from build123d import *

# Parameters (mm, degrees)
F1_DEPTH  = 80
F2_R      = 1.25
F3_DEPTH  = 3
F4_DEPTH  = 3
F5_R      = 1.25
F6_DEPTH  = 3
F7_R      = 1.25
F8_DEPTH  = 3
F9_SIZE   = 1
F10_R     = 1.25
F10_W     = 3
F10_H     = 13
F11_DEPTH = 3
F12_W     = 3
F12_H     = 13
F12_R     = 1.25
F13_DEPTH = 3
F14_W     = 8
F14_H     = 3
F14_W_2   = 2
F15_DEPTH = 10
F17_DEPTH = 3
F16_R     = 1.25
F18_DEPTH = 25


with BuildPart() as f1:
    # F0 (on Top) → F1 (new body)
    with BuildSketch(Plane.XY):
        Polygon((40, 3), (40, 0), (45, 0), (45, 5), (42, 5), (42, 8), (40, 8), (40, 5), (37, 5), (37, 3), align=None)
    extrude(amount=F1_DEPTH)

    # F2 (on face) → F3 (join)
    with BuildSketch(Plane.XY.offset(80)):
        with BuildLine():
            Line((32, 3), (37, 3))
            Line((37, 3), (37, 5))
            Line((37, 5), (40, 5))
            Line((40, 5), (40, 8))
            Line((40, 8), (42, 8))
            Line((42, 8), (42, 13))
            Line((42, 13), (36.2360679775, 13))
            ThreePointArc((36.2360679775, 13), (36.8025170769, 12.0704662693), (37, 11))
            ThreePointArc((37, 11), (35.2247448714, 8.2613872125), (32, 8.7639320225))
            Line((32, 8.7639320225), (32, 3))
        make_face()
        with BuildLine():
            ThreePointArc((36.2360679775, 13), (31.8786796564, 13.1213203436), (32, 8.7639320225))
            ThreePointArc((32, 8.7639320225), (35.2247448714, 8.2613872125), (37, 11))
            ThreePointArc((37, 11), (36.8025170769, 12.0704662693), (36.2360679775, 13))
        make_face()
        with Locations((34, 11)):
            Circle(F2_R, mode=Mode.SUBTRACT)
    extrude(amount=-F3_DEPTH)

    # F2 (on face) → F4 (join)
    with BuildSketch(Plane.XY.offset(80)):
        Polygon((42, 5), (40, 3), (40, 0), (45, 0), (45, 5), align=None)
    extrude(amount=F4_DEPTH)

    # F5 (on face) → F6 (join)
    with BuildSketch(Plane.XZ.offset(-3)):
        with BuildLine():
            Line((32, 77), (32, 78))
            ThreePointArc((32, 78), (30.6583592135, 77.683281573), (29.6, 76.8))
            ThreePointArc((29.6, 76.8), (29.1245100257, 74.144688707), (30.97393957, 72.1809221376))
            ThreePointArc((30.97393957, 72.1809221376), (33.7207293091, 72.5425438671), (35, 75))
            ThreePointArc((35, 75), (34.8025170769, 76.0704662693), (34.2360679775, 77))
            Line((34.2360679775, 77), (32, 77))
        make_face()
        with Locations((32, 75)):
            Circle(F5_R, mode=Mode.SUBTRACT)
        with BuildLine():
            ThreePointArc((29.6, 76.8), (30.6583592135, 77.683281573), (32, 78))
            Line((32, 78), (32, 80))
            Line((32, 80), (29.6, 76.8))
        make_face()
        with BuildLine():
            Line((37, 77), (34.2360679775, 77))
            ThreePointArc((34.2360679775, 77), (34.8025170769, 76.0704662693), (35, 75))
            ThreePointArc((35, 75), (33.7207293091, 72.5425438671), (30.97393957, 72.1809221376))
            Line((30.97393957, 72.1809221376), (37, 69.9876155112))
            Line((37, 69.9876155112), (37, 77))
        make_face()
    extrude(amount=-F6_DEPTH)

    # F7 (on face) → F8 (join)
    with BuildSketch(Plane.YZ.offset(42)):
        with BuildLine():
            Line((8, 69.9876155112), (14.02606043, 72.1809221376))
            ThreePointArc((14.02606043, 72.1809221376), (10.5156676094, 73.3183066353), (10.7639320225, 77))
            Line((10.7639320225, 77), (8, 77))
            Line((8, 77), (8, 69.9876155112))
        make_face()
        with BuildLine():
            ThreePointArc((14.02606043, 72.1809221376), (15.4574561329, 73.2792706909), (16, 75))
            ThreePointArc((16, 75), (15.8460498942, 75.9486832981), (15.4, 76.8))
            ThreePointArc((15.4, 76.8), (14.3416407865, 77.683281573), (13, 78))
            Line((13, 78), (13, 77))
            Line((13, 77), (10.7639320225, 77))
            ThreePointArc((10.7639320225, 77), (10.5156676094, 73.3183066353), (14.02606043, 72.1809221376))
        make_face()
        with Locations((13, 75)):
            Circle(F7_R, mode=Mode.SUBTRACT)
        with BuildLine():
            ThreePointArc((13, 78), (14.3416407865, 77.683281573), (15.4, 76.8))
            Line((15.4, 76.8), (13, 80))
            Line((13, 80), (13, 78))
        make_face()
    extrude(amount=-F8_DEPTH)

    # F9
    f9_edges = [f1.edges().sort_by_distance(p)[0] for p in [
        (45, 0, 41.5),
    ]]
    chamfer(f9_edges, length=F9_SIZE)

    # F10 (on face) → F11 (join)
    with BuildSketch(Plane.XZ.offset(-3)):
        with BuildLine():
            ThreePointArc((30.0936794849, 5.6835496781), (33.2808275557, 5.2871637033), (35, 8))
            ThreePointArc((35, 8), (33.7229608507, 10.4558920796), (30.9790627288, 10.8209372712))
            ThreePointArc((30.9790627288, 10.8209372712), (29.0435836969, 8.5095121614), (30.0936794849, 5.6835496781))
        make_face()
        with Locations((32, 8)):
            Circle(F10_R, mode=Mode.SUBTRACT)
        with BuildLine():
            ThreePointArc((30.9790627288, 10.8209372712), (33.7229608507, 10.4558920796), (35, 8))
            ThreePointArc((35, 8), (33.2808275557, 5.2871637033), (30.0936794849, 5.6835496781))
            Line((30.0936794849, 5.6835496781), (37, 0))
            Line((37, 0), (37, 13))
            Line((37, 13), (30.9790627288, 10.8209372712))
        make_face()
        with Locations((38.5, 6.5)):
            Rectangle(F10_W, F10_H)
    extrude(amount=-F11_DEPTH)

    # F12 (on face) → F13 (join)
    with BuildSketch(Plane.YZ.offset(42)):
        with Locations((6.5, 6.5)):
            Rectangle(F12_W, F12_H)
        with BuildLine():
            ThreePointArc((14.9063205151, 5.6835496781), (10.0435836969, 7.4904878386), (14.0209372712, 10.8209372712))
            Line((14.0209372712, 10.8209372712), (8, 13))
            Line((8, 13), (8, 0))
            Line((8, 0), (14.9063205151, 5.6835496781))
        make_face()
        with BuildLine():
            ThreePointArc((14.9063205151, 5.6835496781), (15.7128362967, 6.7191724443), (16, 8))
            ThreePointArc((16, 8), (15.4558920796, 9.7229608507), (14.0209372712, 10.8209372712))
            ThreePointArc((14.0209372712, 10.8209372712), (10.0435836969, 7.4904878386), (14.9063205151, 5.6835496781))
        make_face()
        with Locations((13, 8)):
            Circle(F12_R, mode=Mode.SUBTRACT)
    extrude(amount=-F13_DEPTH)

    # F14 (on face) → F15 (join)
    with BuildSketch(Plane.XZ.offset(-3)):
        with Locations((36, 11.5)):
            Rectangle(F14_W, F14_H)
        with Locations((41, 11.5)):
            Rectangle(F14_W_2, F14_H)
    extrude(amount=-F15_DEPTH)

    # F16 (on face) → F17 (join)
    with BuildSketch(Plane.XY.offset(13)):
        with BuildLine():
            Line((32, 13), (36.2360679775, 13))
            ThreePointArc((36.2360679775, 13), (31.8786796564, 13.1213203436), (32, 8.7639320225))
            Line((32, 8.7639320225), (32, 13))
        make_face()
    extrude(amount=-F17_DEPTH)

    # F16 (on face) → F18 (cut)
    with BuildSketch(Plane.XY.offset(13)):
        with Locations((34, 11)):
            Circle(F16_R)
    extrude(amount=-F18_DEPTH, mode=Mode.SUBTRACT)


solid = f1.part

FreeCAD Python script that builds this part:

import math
import FreeCAD as App
import Part
import Sketcher

V = App.Vector
Q = App.Units.Quantity


def edges_at(feature, points):
    """Names of the edges that pass closest to the given points."""
    edges = feature.Shape.Edges
    near = lambda p: min(range(len(edges)), key=lambda i: edges[i].distToShape(Part.Vertex(*p))[0])
    return sorted({f"Edge{near(p) + 1}" for p in points})


def add_polygon(sketch, points):
    """Adds a closed chain of lines whose ends are joined by coincident constraints."""
    first, n = sketch.GeometryCount, len(points)
    for a, b in zip(points, points[1:] + points[:1]):
        sketch.addGeometry(Part.LineSegment(App.Vector(*a, 0), App.Vector(*b, 0)), False)
    for i in range(n):
        sketch.addConstraint(Sketcher.Constraint("Coincident", first + i, 2, first + (i + 1) % n, 1))

doc = App.newDocument("Part")
body = doc.addObject("PartDesign::Body", "Body")

# Sketch on XY plane
sketch1 = doc.addObject("Sketcher::SketchObject", "Sketch")
body.addObject(sketch1)
sketch1.AttachmentSupport = (doc.XY_Plane, [""])
sketch1.MapMode = "FlatFace"
add_polygon(sketch1, [(40, 3), (40, 0), (45, 0), (45, 5), (42, 5), (42, 8), (40, 8), (40, 5), (37, 5), (37, 3)])  # lines 0-9
sketch1.addConstraint(Sketcher.Constraint("Vertical", 0))
sketch1.addConstraint(Sketcher.Constraint("Horizontal", 1))
sketch1.addConstraint(Sketcher.Constraint("Vertical", 2))
sketch1.addConstraint(Sketcher.Constraint("Horizontal", 3))
sketch1.addConstraint(Sketcher.Constraint("Vertical", 4))
sketch1.addConstraint(Sketcher.Constraint("Horizontal", 5))
sketch1.addConstraint(Sketcher.Constraint("Vertical", 6))
sketch1.addConstraint(Sketcher.Constraint("Horizontal", 7))
sketch1.addConstraint(Sketcher.Constraint("Vertical", 8))
sketch1.addConstraint(Sketcher.Constraint("Horizontal", 9))
sketch1.addConstraint(Sketcher.Constraint("PointOnObject", 0, 2, -1))
sketch1.addConstraint(Sketcher.Constraint("Horizontal", 3, 2, 6, 2))
sketch1.addConstraint(Sketcher.Constraint("Vertical", 0, 2, 5, 2))
sketch1.addConstraint(Sketcher.Constraint("Equal", 3, 7))
sketch1.addConstraint(Sketcher.Constraint("Equal", 9, 0))
sketch1.addConstraint(Sketcher.Constraint("Equal", 1, 2))
sketch1.addConstraint(Sketcher.Constraint("Equal", 0, 4))
sketch1.addConstraint(Sketcher.Constraint("DistanceX", 1, 1, 1, 2, Q("5 mm")))
sketch1.addConstraint(Sketcher.Constraint("DistanceX", 3, 2, 3, 1, Q("3 mm")))
sketch1.addConstraint(Sketcher.Constraint("DistanceX", -1, 1, 0, 2, Q("40 mm")))
pad1 = doc.addObject("PartDesign::Pad", "Pad")
body.addObject(pad1)
pad1.Profile = sketch1
pad1.Length = 80

# Sketch on XY plane
sketch2 = doc.addObject("Sketcher::SketchObject", "Sketch001")
body.addObject(sketch2)
sketch2.AttachmentSupport = (doc.XY_Plane, [""])
sketch2.MapMode = "FlatFace"
sketch2.AttachmentOffset = App.Placement(V(0, 0, 80), App.Rotation())
sketch2.addGeometry(Part.LineSegment(V(32, 3, 0), V(37, 3, 0)), False)
sketch2.addGeometry(Part.LineSegment(V(37, 3, 0), V(37, 5, 0)), False)
sketch2.addGeometry(Part.LineSegment(V(37, 5, 0), V(40, 5, 0)), False)
sketch2.addGeometry(Part.LineSegment(V(40, 5, 0), V(40, 8, 0)), False)
sketch2.addGeometry(Part.LineSegment(V(40, 8, 0), V(42, 8, 0)), False)
sketch2.addGeometry(Part.LineSegment(V(42, 8, 0), V(42, 13, 0)), False)
sketch2.addGeometry(Part.LineSegment(V(42, 13, 0), V(36.2, 13, 0)), False)
sketch2.addGeometry(Part.ArcOfCircle(Part.Circle(V(34, 11, 0), V(0, 0, 1), 3), math.radians(42), math.radians(228)), False)
sketch2.addGeometry(Part.LineSegment(V(32, 8.8, 0), V(32, 3, 0)), False)
sketch2.addGeometry(Part.Circle(V(34, 11, 0), V(0, 0, 1), 1.2), False)
sketch2.addConstraint(Sketcher.Constraint("Coincident", 0, 2, 1, 1))
sketch2.addConstraint(Sketcher.Constraint("Coincident", 1, 2, 2, 1))
sketch2.addConstraint(Sketcher.Constraint("Coincident", 2, 2, 3, 1))
sketch2.addConstraint(Sketcher.Constraint("Coincident", 3, 2, 4, 1))
sketch2.addConstraint(Sketcher.Constraint("Coincident", 4, 2, 5, 1))
sketch2.addConstraint(Sketcher.Constraint("Coincident", 5, 2, 6, 1))
sketch2.addConstraint(Sketcher.Constraint("Coincident", 6, 2, 7, 1))
sketch2.addConstraint(Sketcher.Constraint("Coincident", 7, 2, 8, 1))
sketch2.addConstraint(Sketcher.Constraint("Coincident", 8, 2, 0, 1))
sketch2.addConstraint(Sketcher.Constraint("Horizontal", 0))
sketch2.addConstraint(Sketcher.Constraint("Vertical", 1))
sketch2.addConstraint(Sketcher.Constraint("Horizontal", 2))
sketch2.addConstraint(Sketcher.Constraint("Vertical", 3))
sketch2.addConstraint(Sketcher.Constraint("Horizontal", 4))
sketch2.addConstraint(Sketcher.Constraint("Vertical", 5))
sketch2.addConstraint(Sketcher.Constraint("Horizontal", 6))
sketch2.addConstraint(Sketcher.Constraint("Vertical", 8))
sketch2.addConstraint(Sketcher.Constraint("Coincident", 9, 3, 7, 3))
sketch2.addConstraint(Sketcher.Constraint("Equal", 4, 1))
sketch2.addConstraint(Sketcher.Constraint("Equal", 2, 3))
sketch2.addConstraint(Sketcher.Constraint("Equal", 0, 5))
sketch2.addConstraint(Sketcher.Constraint("Equal", 6, 8))
sketch2.addConstraint(Sketcher.Constraint("Radius", 7, Q("3 mm")))
sketch2.addConstraint(Sketcher.Constraint("Diameter", 9, Q("2.5 mm")))
sketch2.addConstraint(Sketcher.Constraint("DistanceX", 0, 1, 0, 2, Q("5 mm")))
sketch2.addConstraint(Sketcher.Constraint("DistanceX", 2, 1, 2, 2, Q("3 mm")))
sketch2.addConstraint(Sketcher.Constraint("DistanceX", 4, 1, 4, 2, Q("2 mm")))
sketch2.addConstraint(Sketcher.Constraint("DistanceX", -1, 1, 7, 3, Q("34 mm")))
sketch2.addConstraint(Sketcher.Constraint("DistanceY", -1, 1, 7, 3, Q("11 mm")))
sketch2.addConstraint(Sketcher.Constraint("DistanceX", -1, 1, 0, 2, Q("37 mm")))
pad2 = doc.addObject("PartDesign::Pad", "Pad001")
body.addObject(pad2)
pad2.Profile = sketch2
pad2.Length = 3
pad2.Reversed = True

# Sketch on XY plane
sketch3 = doc.addObject("Sketcher::SketchObject", "Sketch002")
body.addObject(sketch3)
sketch3.AttachmentSupport = (doc.XY_Plane, [""])
sketch3.MapMode = "FlatFace"
sketch3.AttachmentOffset = App.Placement(V(0, 0, 80), App.Rotation())
add_polygon(sketch3, [(42, 5), (40, 3), (40, 0), (45, 0), (45, 5)])  # lines 0-4
sketch3.addConstraint(Sketcher.Constraint("Vertical", 1))
sketch3.addConstraint(Sketcher.Constraint("Horizontal", 2))
sketch3.addConstraint(Sketcher.Constraint("Vertical", 3))
sketch3.addConstraint(Sketcher.Constraint("Horizontal", 4))
sketch3.addConstraint(Sketcher.Constraint("PointOnObject", 1, 2, -1))
sketch3.addConstraint(Sketcher.Constraint("Equal", 4, 1))
sketch3.addConstraint(Sketcher.Constraint("Equal", 2, 3))
sketch3.addConstraint(Sketcher.Constraint("DistanceX", 2, 1, 2, 2, Q("5 mm")))
sketch3.addConstraint(Sketcher.Constraint("DistanceX", 4, 2, 4, 1, Q("3 mm")))
sketch3.addConstraint(Sketcher.Constraint("DistanceX", -1, 1, 0, 2, Q("40 mm")))
pad3 = doc.addObject("PartDesign::Pad", "Pad002")
body.addObject(pad3)
pad3.Profile = sketch3
pad3.Length = 3

# Sketch on XZ plane
sketch4 = doc.addObject("Sketcher::SketchObject", "Sketch003")
body.addObject(sketch4)
sketch4.AttachmentSupport = (doc.XZ_Plane, [""])
sketch4.MapMode = "FlatFace"
sketch4.AttachmentOffset = App.Placement(V(0, 0, -3), App.Rotation())
sketch4.addGeometry(Part.LineSegment(V(32, 77, 0), V(32, 80, 0)), False)
sketch4.addGeometry(Part.LineSegment(V(32, 80, 0), V(29.6, 76.8, 0)), False)
sketch4.addGeometry(Part.ArcOfCircle(Part.Circle(V(32, 75, 0), V(0, 0, 1), 3), math.radians(143), math.radians(250)), False)
sketch4.addGeometry(Part.LineSegment(V(31, 72.2, 0), V(37, 70, 0)), False)
sketch4.addGeometry(Part.LineSegment(V(37, 70, 0), V(37, 77, 0)), False)
sketch4.addGeometry(Part.LineSegment(V(37, 77, 0), V(32, 77, 0)), False)
sketch4.addGeometry(Part.Circle(V(32, 75, 0), V(0, 0, 1), 1.2), False)
sketch4.addConstraint(Sketcher.Constraint("Coincident", 0, 2, 1, 1))
sketch4.addConstraint(Sketcher.Constraint("Tangent", 1, 2, 2, 1))
sketch4.addConstraint(Sketcher.Constraint("Tangent", 2, 2, 3, 1))
sketch4.addConstraint(Sketcher.Constraint("Coincident", 3, 2, 4, 1))
sketch4.addConstraint(Sketcher.Constraint("Coincident", 4, 2, 5, 1))
sketch4.addConstraint(Sketcher.Constraint("Coincident", 5, 2, 0, 1))
sketch4.addConstraint(Sketcher.Constraint("Vertical", 0))
sketch4.addConstraint(Sketcher.Constraint("Vertical", 4))
sketch4.addConstraint(Sketcher.Constraint("Horizontal", 5))
sketch4.addConstraint(Sketcher.Constraint("Coincident", 6, 3, 2, 3))
sketch4.addConstraint(Sketcher.Constraint("Vertical", 6, 3, 0, 2))
sketch4.addConstraint(Sketcher.Constraint("Radius", 2, Q("3 mm")))
sketch4.addConstraint(Sketcher.Constraint("Diameter", 6, Q("2.5 mm")))
sketch4.addConstraint(Sketcher.Constraint("DistanceX", 5, 2, 5, 1, Q("5 mm")))
sketch4.addConstraint(Sketcher.Constraint("DistanceY", 0, 1, 0, 2, Q("3 mm")))
sketch4.addConstraint(Sketcher.Constraint("Angle", 3, Q("-20 deg")))
sketch4.addConstraint(Sketcher.Constraint("Distance", 1, Q("4 mm")))
sketch4.addConstraint(Sketcher.Constraint("DistanceX", -1, 1, 2, 3, Q("32 mm")))
sketch4.addConstraint(Sketcher.Constraint("DistanceY", -1, 1, 2, 3, Q("75 mm")))
pad4 = doc.addObject("PartDesign::Pad", "Pad003")
body.addObject(pad4)
pad4.Profile = sketch4
pad4.Length = 3
pad4.Reversed = True

# Sketch on YZ plane
sketch5 = doc.addObject("Sketcher::SketchObject", "Sketch004")
body.addObject(sketch5)
sketch5.AttachmentSupport = (doc.YZ_Plane, [""])
sketch5.MapMode = "FlatFace"
sketch5.AttachmentOffset = App.Placement(V(0, 0, 42), App.Rotation())
sketch5.addGeometry(Part.LineSegment(V(8, 70, 0), V(14, 72.2, 0)), False)
sketch5.addGeometry(Part.ArcOfCircle(Part.Circle(V(13, 75, 0), V(0, 0, 1), 3), math.radians(-70), math.radians(0)), False)
sketch5.addGeometry(Part.ArcOfCircle(Part.Circle(V(13, 75, 0), V(0, 0, 1), 3), math.radians(0), math.radians(37)), False)
sketch5.addGeometry(Part.LineSegment(V(15.4, 76.8, 0), V(13, 80, 0)), False)
sketch5.addGeometry(Part.LineSegment(V(13, 80, 0), V(13, 77, 0)), False)
sketch5.addGeometry(Part.LineSegment(V(13, 77, 0), V(8, 77, 0)), False)
sketch5.addGeometry(Part.LineSegment(V(8, 77, 0), V(8, 70, 0)), False)
sketch5.addGeometry(Part.Circle(V(13, 75, 0), V(0, 0, 1), 1.2), False)
sketch5.addConstraint(Sketcher.Constraint("Tangent", 0, 2, 1, 1))
sketch5.addConstraint(Sketcher.Constraint("Tangent", 1, 2, 2, 1))
sketch5.addConstraint(Sketcher.Constraint("Tangent", 2, 2, 3, 1))
sketch5.addConstraint(Sketcher.Constraint("Coincident", 3, 2, 4, 1))
sketch5.addConstraint(Sketcher.Constraint("Coincident", 4, 2, 5, 1))
sketch5.addConstraint(Sketcher.Constraint("Coincident", 5, 2, 6, 1))
sketch5.addConstraint(Sketcher.Constraint("Coincident", 6, 2, 0, 1))
sketch5.addConstraint(Sketcher.Constraint("Vertical", 4))
sketch5.addConstraint(Sketcher.Constraint("Horizontal", 5))
sketch5.addConstraint(Sketcher.Constraint("Vertical", 6))
sketch5.addConstraint(Sketcher.Constraint("Coincident", 7, 3, 1, 3))
sketch5.addConstraint(Sketcher.Constraint("Equal", 1, 2))
sketch5.addConstraint(Sketcher.Constraint("Horizontal", 7, 3, 1, 2))
sketch5.addConstraint(Sketcher.Constraint("Vertical", 7, 3, 3, 2))
sketch5.addConstraint(Sketcher.Constraint("Radius", 1, Q("3 mm")))
sketch5.addConstraint(Sketcher.Constraint("Diameter", 7, Q("2.5 mm")))
sketch5.addConstraint(Sketcher.Constraint("DistanceX", 5, 2, 5, 1, Q("5 mm")))
sketch5.addConstraint(Sketcher.Constraint("DistanceY", 4, 2, 4, 1, Q("3 mm")))
sketch5.addConstraint(Sketcher.Constraint("Angle", 0, Q("20 deg")))
sketch5.addConstraint(Sketcher.Constraint("Distance", 3, Q("4 mm")))
sketch5.addConstraint(Sketcher.Constraint("DistanceX", -1, 1, 1, 3, Q("13 mm")))
sketch5.addConstraint(Sketcher.Constraint("DistanceY", -1, 1, 1, 3, Q("75 mm")))
pad5 = doc.addObject("PartDesign::Pad", "Pad004")
body.addObject(pad5)
pad5.Profile = sketch5
pad5.Length = 3
pad5.Reversed = True
doc.recompute()

chamfer = doc.addObject("PartDesign::Chamfer", "Chamfer")
body.addObject(chamfer)
chamfer.Base = (pad5, edges_at(pad5, [(45, 0, 41.5)]))
chamfer.Size = 1

# Sketch on XZ plane
sketch6 = doc.addObject("Sketcher::SketchObject", "Sketch005")
body.addObject(sketch6)
sketch6.AttachmentSupport = (doc.XZ_Plane, [""])
sketch6.MapMode = "FlatFace"
sketch6.AttachmentOffset = App.Placement(V(0, 0, -3), App.Rotation())
sketch6.addGeometry(Part.ArcOfCircle(Part.Circle(V(32, 8, 0), V(0, 0, 1), 3), math.radians(110), math.radians(231)), False)
sketch6.addGeometry(Part.LineSegment(V(30.1, 5.7, 0), V(37, 0, 0)), False)
sketch6.addGeometry(Part.LineSegment(V(37, 0, 0), V(40, 0, 0)), False)
sketch6.addGeometry(Part.LineSegment(V(40, 0, 0), V(40, 13, 0)), False)
sketch6.addGeometry(Part.LineSegment(V(40, 13, 0), V(37, 13, 0)), False)
sketch6.addGeometry(Part.LineSegment(V(37, 13, 0), V(31, 10.8, 0)), False)
sketch6.addGeometry(Part.Circle(V(32, 8, 0), V(0, 0, 1), 1.2), False)
sketch6.addConstraint(Sketcher.Constraint("Tangent", 0, 2, 1, 1))
sketch6.addConstraint(Sketcher.Constraint("Coincident", 1, 2, 2, 1))
sketch6.addConstraint(Sketcher.Constraint("Coincident", 2, 2, 3, 1))
sketch6.addConstraint(Sketcher.Constraint("Coincident", 3, 2, 4, 1))
sketch6.addConstraint(Sketcher.Constraint("Coincident", 4, 2, 5, 1))
sketch6.addConstraint(Sketcher.Constraint("Tangent", 5, 2, 0, 1))
sketch6.addConstraint(Sketcher.Constraint("Horizontal", 2))
sketch6.addConstraint(Sketcher.Constraint("Vertical", 3))
sketch6.addConstraint(Sketcher.Constraint("Horizontal", 4))
sketch6.addConstraint(Sketcher.Constraint("Coincident", 6, 3, 0, 3))
sketch6.addConstraint(Sketcher.Constraint("PointOnObject", 1, 2, -1))
sketch6.addConstraint(Sketcher.Constraint("Vertical", 1, 2, 4, 2))
sketch6.addConstraint(Sketcher.Constraint("Radius", 0, Q("3 mm")))
sketch6.addConstraint(Sketcher.Constraint("Diameter", 6, Q("2.5 mm")))
sketch6.addConstraint(Sketcher.Constraint("DistanceX", 2, 1, 2, 2, Q("3 mm")))
sketch6.addConstraint(Sketcher.Constraint("DistanceY", 3, 1, 3, 2, Q("13 mm")))
sketch6.addConstraint(Sketcher.Constraint("DistanceX", -1, 1, 0, 3, Q("32 mm")))
sketch6.addConstraint(Sketcher.Constraint("DistanceY", -1, 1, 0, 3, Q("8 mm")))
sketch6.addConstraint(Sketcher.Constraint("DistanceX", -1, 1, 1, 2, Q("37 mm")))
pad6 = doc.addObject("PartDesign::Pad", "Pad005")
body.addObject(pad6)
pad6.Profile = sketch6
pad6.Length = 3
pad6.Reversed = True

# Sketch on YZ plane
sketch7 = doc.addObject("Sketcher::SketchObject", "Sketch006")
body.addObject(sketch7)
sketch7.AttachmentSupport = (doc.YZ_Plane, [""])
sketch7.MapMode = "FlatFace"
sketch7.AttachmentOffset = App.Placement(V(0, 0, 42), App.Rotation())
sketch7.addGeometry(Part.LineSegment(V(5, 13, 0), V(5, 0, 0)), False)
sketch7.addGeometry(Part.LineSegment(V(5, 0, 0), V(8, 0, 0)), False)
sketch7.addGeometry(Part.LineSegment(V(8, 0, 0), V(14.9, 5.7, 0)), False)
sketch7.addGeometry(Part.ArcOfCircle(Part.Circle(V(13, 8, 0), V(0, 0, 1), 3), math.radians(-51), math.radians(0)), False)
sketch7.addGeometry(Part.ArcOfCircle(Part.Circle(V(13, 8, 0), V(0, 0, 1), 3), math.radians(0), math.radians(70)), False)
sketch7.addGeometry(Part.LineSegment(V(14, 10.8, 0), V(8, 13, 0)), False)
sketch7.addGeometry(Part.LineSegment(V(8, 13, 0), V(5, 13, 0)), False)
sketch7.addGeometry(Part.Circle(V(13, 8, 0), V(0, 0, 1), 1.2), False)
sketch7.addConstraint(Sketcher.Constraint("Coincident", 0, 2, 1, 1))
sketch7.addConstraint(Sketcher.Constraint("Coincident", 1, 2, 2, 1))
sketch7.addConstraint(Sketcher.Constraint("Tangent", 2, 2, 3, 1))
sketch7.addConstraint(Sketcher.Constraint("Tangent", 3, 2, 4, 1))
sketch7.addConstraint(Sketcher.Constraint("Tangent", 4, 2, 5, 1))
sketch7.addConstraint(Sketcher.Constraint("Coincident", 5, 2, 6, 1))
sketch7.addConstraint(Sketcher.Constraint("Coincident", 6, 2, 0, 1))
sketch7.addConstraint(Sketcher.Constraint("Vertical", 0))
sketch7.addConstraint(Sketcher.Constraint("Horizontal", 1))
sketch7.addConstraint(Sketcher.Constraint("Horizontal", 6))
sketch7.addConstraint(Sketcher.Constraint("Coincident", 7, 3, 3, 3))
sketch7.addConstraint(Sketcher.Constraint("Equal", 3, 4))
sketch7.addConstraint(Sketcher.Constraint("PointOnObject", 0, 2, -1))
sketch7.addConstraint(Sketcher.Constraint("Horizontal", 7, 3, 3, 2))
sketch7.addConstraint(Sketcher.Constraint("Vertical", 1, 2, 5, 2))
sketch7.addConstraint(Sketcher.Constraint("Radius", 3, Q("3 mm")))
sketch7.addConstraint(Sketcher.Constraint("Diameter", 7, Q("2.5 mm")))
sketch7.addConstraint(Sketcher.Constraint("DistanceX", 1, 1, 1, 2, Q("3 mm")))
sketch7.addConstraint(Sketcher.Constraint("DistanceY", 0, 2, 0, 1, Q("13 mm")))
sketch7.addConstraint(Sketcher.Constraint("DistanceX", -1, 1, 3, 3, Q("13 mm")))
sketch7.addConstraint(Sketcher.Constraint("DistanceY", -1, 1, 3, 3, Q("8 mm")))
sketch7.addConstraint(Sketcher.Constraint("DistanceX", -1, 1, 0, 2, Q("5 mm")))
pad7 = doc.addObject("PartDesign::Pad", "Pad006")
body.addObject(pad7)
pad7.Profile = sketch7
pad7.Length = 3
pad7.Reversed = True

# Sketch on XZ plane
sketch8 = doc.addObject("Sketcher::SketchObject", "Sketch007")
body.addObject(sketch8)
sketch8.AttachmentSupport = (doc.XZ_Plane, [""])
sketch8.MapMode = "FlatFace"
sketch8.AttachmentOffset = App.Placement(V(0, 0, -3), App.Rotation())
add_polygon(sketch8, [(32, 13), (32, 10), (42, 10), (42, 13)])  # lines 0-3
sketch8.addConstraint(Sketcher.Constraint("Vertical", 0))
sketch8.addConstraint(Sketcher.Constraint("Horizontal", 1))
sketch8.addConstraint(Sketcher.Constraint("Vertical", 2))
sketch8.addConstraint(Sketcher.Constraint("Horizontal", 3))
sketch8.addConstraint(Sketcher.Constraint("DistanceX", 1, 1, 1, 2, Q("10 mm")))
sketch8.addConstraint(Sketcher.Constraint("DistanceY", 0, 2, 0, 1, Q("3 mm")))
sketch8.addConstraint(Sketcher.Constraint("DistanceX", -1, 1, 0, 2, Q("32 mm")))
sketch8.addConstraint(Sketcher.Constraint("DistanceY", -1, 1, 0, 2, Q("10 mm")))
pad8 = doc.addObject("PartDesign::Pad", "Pad007")
body.addObject(pad8)
pad8.Profile = sketch8
pad8.Length = 10
pad8.Reversed = True

# Sketch on XY plane
sketch9 = doc.addObject("Sketcher::SketchObject", "Sketch008")
body.addObject(sketch9)
sketch9.AttachmentSupport = (doc.XY_Plane, [""])
sketch9.MapMode = "FlatFace"
sketch9.AttachmentOffset = App.Placement(V(0, 0, 13), App.Rotation())
sketch9.addGeometry(Part.LineSegment(V(32, 13, 0), V(36.2, 13, 0)), False)
sketch9.addGeometry(Part.ArcOfCircle(Part.Circle(V(34, 11, 0), V(0, 0, 1), 3), math.radians(42), math.radians(228)), False)
sketch9.addGeometry(Part.LineSegment(V(32, 8.8, 0), V(32, 13, 0)), False)
sketch9.addConstraint(Sketcher.Constraint("Coincident", 0, 2, 1, 1))
sketch9.addConstraint(Sketcher.Constraint("Coincident", 1, 2, 2, 1))
sketch9.addConstraint(Sketcher.Constraint("Coincident", 2, 2, 0, 1))
sketch9.addConstraint(Sketcher.Constraint("Horizontal", 0))
sketch9.addConstraint(Sketcher.Constraint("Vertical", 2))
sketch9.addConstraint(Sketcher.Constraint("Equal", 0, 2))
sketch9.addConstraint(Sketcher.Constraint("Radius", 1, Q("3 mm")))
sketch9.addConstraint(Sketcher.Constraint("DistanceX", -1, 1, 1, 3, Q("34 mm")))
sketch9.addConstraint(Sketcher.Constraint("DistanceY", -1, 1, 1, 3, Q("11 mm")))
sketch9.addConstraint(Sketcher.Constraint("DistanceY", -1, 1, 0, 2, Q("13 mm")))
pad9 = doc.addObject("PartDesign::Pad", "Pad008")
body.addObject(pad9)
pad9.Profile = sketch9
pad9.Length = 3
pad9.Reversed = True

# Sketch on XY plane
sketch10 = doc.addObject("Sketcher::SketchObject", "Sketch009")
body.addObject(sketch10)
sketch10.AttachmentSupport = (doc.XY_Plane, [""])
sketch10.MapMode = "FlatFace"
sketch10.AttachmentOffset = App.Placement(V(0, 0, 13), App.Rotation())
sketch10.addGeometry(Part.Circle(V(34, 11, 0), V(0, 0, 1), 1.2), False)
sketch10.addConstraint(Sketcher.Constraint("Diameter", 0, Q("2.5 mm")))
sketch10.addConstraint(Sketcher.Constraint("DistanceX", -1, 1, 0, 3, Q("34 mm")))
sketch10.addConstraint(Sketcher.Constraint("DistanceY", -1, 1, 0, 3, Q("11 mm")))
pocket1 = doc.addObject("PartDesign::Pocket", "Pocket")
body.addObject(pocket1)
pocket1.Profile = sketch10
pocket1.Length = 25

doc.recompute()
